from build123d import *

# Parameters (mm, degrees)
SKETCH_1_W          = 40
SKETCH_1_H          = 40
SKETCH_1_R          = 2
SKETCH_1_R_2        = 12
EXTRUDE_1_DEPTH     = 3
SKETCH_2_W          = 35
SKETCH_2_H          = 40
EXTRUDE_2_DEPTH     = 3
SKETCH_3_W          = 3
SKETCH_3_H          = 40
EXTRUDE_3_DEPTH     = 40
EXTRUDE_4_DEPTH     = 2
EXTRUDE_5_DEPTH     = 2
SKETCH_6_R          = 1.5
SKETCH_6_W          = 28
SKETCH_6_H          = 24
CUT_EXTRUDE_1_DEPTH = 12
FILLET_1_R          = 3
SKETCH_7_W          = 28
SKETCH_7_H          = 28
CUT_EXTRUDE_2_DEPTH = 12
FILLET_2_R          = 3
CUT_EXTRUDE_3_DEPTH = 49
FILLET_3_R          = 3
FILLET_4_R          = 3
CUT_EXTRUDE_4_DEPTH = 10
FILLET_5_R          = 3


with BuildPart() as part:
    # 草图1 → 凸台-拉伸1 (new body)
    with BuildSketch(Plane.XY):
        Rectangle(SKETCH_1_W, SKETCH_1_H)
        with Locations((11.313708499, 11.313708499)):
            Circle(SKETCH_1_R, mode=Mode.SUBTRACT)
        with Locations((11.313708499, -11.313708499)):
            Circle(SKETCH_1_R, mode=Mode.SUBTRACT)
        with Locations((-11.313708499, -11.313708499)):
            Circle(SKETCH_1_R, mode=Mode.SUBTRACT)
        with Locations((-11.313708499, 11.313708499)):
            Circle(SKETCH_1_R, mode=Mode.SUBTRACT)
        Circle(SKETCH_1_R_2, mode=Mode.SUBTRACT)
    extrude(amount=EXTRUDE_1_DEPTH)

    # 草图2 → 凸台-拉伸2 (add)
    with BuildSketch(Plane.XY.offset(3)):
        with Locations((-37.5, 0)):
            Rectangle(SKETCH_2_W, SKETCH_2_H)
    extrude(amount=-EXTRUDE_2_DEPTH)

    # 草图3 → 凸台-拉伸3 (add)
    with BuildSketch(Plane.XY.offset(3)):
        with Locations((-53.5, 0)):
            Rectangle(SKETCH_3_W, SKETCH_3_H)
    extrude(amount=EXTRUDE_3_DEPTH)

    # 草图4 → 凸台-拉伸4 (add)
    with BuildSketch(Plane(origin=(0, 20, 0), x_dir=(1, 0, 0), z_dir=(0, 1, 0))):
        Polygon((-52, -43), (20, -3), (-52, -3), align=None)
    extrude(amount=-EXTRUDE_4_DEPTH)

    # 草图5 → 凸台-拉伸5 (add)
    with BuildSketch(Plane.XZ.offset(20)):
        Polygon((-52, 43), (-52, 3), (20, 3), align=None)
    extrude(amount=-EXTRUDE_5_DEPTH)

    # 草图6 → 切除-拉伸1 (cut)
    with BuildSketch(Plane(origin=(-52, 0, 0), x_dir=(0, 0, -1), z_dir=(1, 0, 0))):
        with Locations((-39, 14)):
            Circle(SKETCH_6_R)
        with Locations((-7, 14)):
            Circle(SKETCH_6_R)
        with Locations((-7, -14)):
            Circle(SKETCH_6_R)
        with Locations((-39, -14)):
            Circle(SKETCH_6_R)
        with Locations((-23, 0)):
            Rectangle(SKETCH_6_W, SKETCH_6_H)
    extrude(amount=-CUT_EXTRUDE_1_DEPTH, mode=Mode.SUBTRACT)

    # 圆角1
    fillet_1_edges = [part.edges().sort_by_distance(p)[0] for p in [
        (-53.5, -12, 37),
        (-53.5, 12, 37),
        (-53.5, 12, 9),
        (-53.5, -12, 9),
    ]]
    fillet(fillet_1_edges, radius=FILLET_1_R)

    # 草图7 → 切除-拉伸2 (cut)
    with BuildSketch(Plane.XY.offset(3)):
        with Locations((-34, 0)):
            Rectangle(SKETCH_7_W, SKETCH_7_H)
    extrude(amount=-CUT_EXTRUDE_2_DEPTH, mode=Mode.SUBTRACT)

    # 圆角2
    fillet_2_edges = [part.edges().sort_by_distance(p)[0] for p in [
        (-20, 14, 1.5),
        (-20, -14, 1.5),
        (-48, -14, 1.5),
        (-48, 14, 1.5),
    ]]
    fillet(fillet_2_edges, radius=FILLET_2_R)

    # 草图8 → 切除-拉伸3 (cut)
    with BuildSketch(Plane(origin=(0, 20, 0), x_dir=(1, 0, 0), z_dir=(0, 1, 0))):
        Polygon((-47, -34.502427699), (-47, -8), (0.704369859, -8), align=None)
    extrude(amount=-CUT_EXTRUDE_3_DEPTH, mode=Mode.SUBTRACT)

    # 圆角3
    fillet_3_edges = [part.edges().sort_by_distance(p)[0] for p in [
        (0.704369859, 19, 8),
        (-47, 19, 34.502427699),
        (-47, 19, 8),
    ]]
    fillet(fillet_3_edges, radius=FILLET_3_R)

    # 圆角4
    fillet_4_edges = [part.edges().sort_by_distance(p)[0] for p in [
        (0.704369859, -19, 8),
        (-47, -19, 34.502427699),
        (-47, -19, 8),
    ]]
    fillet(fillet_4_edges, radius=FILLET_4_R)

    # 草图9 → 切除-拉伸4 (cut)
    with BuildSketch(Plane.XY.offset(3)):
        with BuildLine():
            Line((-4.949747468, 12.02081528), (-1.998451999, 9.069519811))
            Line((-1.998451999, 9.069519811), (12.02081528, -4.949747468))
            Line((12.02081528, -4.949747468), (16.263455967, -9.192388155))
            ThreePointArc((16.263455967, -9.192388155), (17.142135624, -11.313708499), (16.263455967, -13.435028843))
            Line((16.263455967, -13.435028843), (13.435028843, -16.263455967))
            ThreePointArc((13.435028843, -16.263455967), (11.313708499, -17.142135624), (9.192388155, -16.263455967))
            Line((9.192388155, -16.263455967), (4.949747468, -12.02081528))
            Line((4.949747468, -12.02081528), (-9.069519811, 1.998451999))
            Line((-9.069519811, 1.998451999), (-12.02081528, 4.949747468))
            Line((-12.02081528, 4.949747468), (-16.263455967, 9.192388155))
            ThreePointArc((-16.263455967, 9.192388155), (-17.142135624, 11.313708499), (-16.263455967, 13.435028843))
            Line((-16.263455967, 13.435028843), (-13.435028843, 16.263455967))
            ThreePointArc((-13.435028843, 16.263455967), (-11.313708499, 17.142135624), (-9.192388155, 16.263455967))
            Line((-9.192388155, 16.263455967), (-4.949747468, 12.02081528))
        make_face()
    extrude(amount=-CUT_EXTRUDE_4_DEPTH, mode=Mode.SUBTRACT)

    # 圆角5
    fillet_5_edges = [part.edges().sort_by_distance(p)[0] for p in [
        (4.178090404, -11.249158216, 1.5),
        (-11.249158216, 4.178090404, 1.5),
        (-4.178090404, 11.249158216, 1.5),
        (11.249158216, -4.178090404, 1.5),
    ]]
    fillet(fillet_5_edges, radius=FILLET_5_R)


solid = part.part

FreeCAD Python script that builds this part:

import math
import FreeCAD as App
import Part
import Sketcher

V = App.Vector
Q = App.Units.Quantity


def edges_at(feature, points):
    """Names of the edges that pass closest to the given points."""
    edges = feature.Shape.Edges
    near = lambda p: min(range(len(edges)), key=lambda i: edges[i].distToShape(Part.Vertex(*p))[0])
    return sorted({f"Edge{near(p) + 1}" for p in points})

doc = App.newDocument("Part")
body = doc.addObject("PartDesign::Body", "Body")

sketch1 = body.newObject("Sketcher::SketchObject", "Sketch")
sketch1.AttachmentSupport = (doc.getObject("XY_Plane"), [""])
sketch1.MapMode = "FlatFace"
sketch1.addGeometry(Part.LineSegment(V(-20, 20, 0), V(-20, -20, 0)), False)
sketch1.addGeometry(Part.LineSegment(V(-20, -20, 0), V(20, -20, 0)), False)
sketch1.addGeometry(Part.LineSegment(V(20, -20, 0), V(20, 20, 0)), False)
sketch1.addGeometry(Part.LineSegment(V(20, 20, 0), V(-20, 20, 0)), False)
sketch1.addGeometry(Part.Circle(V(-11.3, -11.3, 0), V(0, 0, 1), 2), False)
sketch1.addGeometry(Part.Circle(V(11.3, -11.3, 0), V(0, 0, 1), 2), False)
sketch1.addGeometry(Part.Circle(V(-11.3, 11.3, 0), V(0, 0, 1), 2), False)
sketch1.addGeometry(Part.Circle(V(0, 0, 0), V(0, 0, 1), 12), False)
sketch1.addGeometry(Part.Circle(V(11.3, 11.3, 0), V(0, 0, 1), 2), False)
sketch1.addConstraint(Sketcher.Constraint("Coincident", 0, 2, 1, 1))
sketch1.addConstraint(Sketcher.Constraint("Coincident", 1, 2, 2, 1))
sketch1.addConstraint(Sketcher.Constraint("Coincident", 2, 2, 3, 1))
sketch1.addConstraint(Sketcher.Constraint("Coincident", 3, 2, 0, 1))
sketch1.addConstraint(Sketcher.Constraint("Vertical", 0))
sketch1.addConstraint(Sketcher.Constraint("Horizontal", 1))
sketch1.addConstraint(Sketcher.Constraint("Vertical", 2))
sketch1.addConstraint(Sketcher.Constraint("Horizontal", 3))
sketch1.addConstraint(Sketcher.Constraint("Coincident", 7, 3, -1, 1))
sketch1.addConstraint(Sketcher.Constraint("Equal", 4, 5))
sketch1.addConstraint(Sketcher.Constraint("Equal", 5, 6))
sketch1.addConstraint(Sketcher.Constraint("Equal", 6, 8))
sketch1.addConstraint(Sketcher.Constraint("Symmetric", 5, 3, 6, 3, -1, 1))
sketch1.addConstraint(Sketcher.Constraint("Symmetric", 4, 3, 8, 3, -1, 1))
sketch1.addConstraint(Sketcher.Constraint("Symmetric", 0, 2, 2, 2, -1, 1))
sketch1.addConstraint(Sketcher.Constraint("Symmetric", 4, 3, 5, 3, -2))
sketch1.addConstraint(Sketcher.Constraint("Equal", 3, 0))
sketch1.addConstraint(Sketcher.Constraint("Diameter", 4, Q("4 mm")))
sketch1.addConstraint(Sketcher.Constraint("Diameter", 7, Q("24 mm")))
sketch1.addConstraint(Sketcher.Constraint("DistanceX", 1, 1, 1, 2, Q("40 mm")))
sketch1.addConstraint(Sketcher.Constraint("DistanceX", 4, 3, -1, 1, Q("11.313708 mm")))
sketch1.addConstraint(Sketcher.Constraint("DistanceY", 4, 3, -1, 1, Q("11.313708 mm")))
pad1 = body.newObject("PartDesign::Pad", "Pad")
pad1.Profile = sketch1
pad1.Length = 3

sketch2 = body.newObject("Sketcher::SketchObject", "Sketch001")
sketch2.AttachmentSupport = (doc.getObject("XY_Plane"), [""])
sketch2.MapMode = "FlatFace"
sketch2.AttachmentOffset = App.Placement(V(0, 0, 3), App.Rotation())
sketch2.addGeometry(Part.LineSegment(V(-55, 20, 0), V(-55, -20, 0)), False)
sketch2.addGeometry(Part.LineSegment(V(-55, -20, 0), V(-20, -20, 0)), False)
sketch2.addGeometry(Part.LineSegment(V(-20, -20, 0), V(-20, 20, 0)), False)
sketch2.addGeometry(Part.LineSegment(V(-20, 20, 0), V(-55, 20, 0)), False)
sketch2.addConstraint(Sketcher.Constraint("Coincident", 0, 2, 1, 1))
sketch2.addConstraint(Sketcher.Constraint("Coincident", 1, 2, 2, 1))
sketch2.addConstraint(Sketcher.Constraint("Coincident", 2, 2, 3, 1))
sketch2.addConstraint(Sketcher.Constraint("Coincident", 3, 2, 0, 1))
sketch2.addConstraint(Sketcher.Constraint("Vertical", 0))
sketch2.addConstraint(Sketcher.Constraint("Horizontal", 1))
sketch2.addConstraint(Sketcher.Constraint("Vertical", 2))
sketch2.addConstraint(Sketcher.Constraint("Horizontal", 3))
sketch2.addConstraint(Sketcher.Constraint("DistanceX", 1, 1, 1, 2, Q("35 mm")))
sketch2.addConstraint(Sketcher.Constraint("DistanceY", 0, 2, 0, 1, Q("40 mm")))
sketch2.addConstraint(Sketcher.Constraint("DistanceX", 0, 2, -1, 1, Q("55 mm")))
sketch2.addConstraint(Sketcher.Constraint("DistanceY", 0, 2, -1, 1, Q("20 mm")))
pad2 = body.newObject("PartDesign::Pad", "Pad001")
pad2.Profile = sketch2
pad2.Length = 3
pad2.Reversed = True

sketch3 = body.newObject("Sketcher::SketchObject", "Sketch002")
sketch3.AttachmentSupport = (doc.getObject("XY_Plane"), [""])
sketch3.MapMode = "FlatFace"
sketch3.AttachmentOffset = App.Placement(V(0, 0, 3), App.Rotation())
sketch3.addGeometry(Part.LineSegment(V(-55, 20, 0), V(-55, -20, 0)), False)
sketch3.addGeometry(Part.LineSegment(V(-55, -20, 0), V(-52, -20, 0)), False)
sketch3.addGeometry(Part.LineSegment(V(-52, -20, 0), V(-52, 20, 0)), False)
sketch3.addGeometry(Part.LineSegment(V(-52, 20, 0), V(-55, 20, 0)), False)
sketch3.addConstraint(Sketcher.Constraint("Coincident", 0, 2, 1, 1))
sketch3.addConstraint(Sketcher.Constraint("Coincident", 1, 2, 2, 1))
sketch3.addConstraint(Sketcher.Constraint("Coincident", 2, 2, 3, 1))
sketch3.addConstraint(Sketcher.Constraint("Coincident", 3, 2, 0, 1))
sketch3.addConstraint(Sketcher.Constraint("Vertical", 0))
sketch3.addConstraint(Sketcher.Constraint("Horizontal", 1))
sketch3.addConstraint(Sketcher.Constraint("Vertical", 2))
sketch3.addConstraint(Sketcher.Constraint("Horizontal", 3))
sketch3.addConstraint(Sketcher.Constraint("DistanceX", 1, 1, 1, 2, Q("3 mm")))
sketch3.addConstraint(Sketcher.Constraint("DistanceY", 0, 2, 0, 1, Q("40 mm")))
sketch3.addConstraint(Sketcher.Constraint("DistanceX", 0, 2, -1, 1, Q("55 mm")))
sketch3.addConstraint(Sketcher.Constraint("DistanceY", 0, 2, -1, 1, Q("20 mm")))
pad3 = body.newObject("PartDesign::Pad", "Pad002")
pad3.Profile = sketch3
pad3.Length = 40

sketch4 = body.newObject("Sketcher::SketchObject", "Sketch003")
sketch4.AttachmentSupport = (doc.getObject("XZ_Plane"), [""])
sketch4.MapMode = "FlatFace"
sketch4.AttachmentOffset = App.Placement(V(0, 0, -20), App.Rotation())
sketch4.addGeometry(Part.LineSegment(V(-52, 43, 0), V(20, 3, 0)), False)
sketch4.addGeometry(Part.LineSegment(V(20, 3, 0), V(-52, 3, 0)), False)
sketch4.addGeometry(Part.LineSegment(V(-52, 3, 0), V(-52, 43, 0)), False)
sketch4.addConstraint(Sketcher.Constraint("Coincident", 0, 2, 1, 1))
sketch4.addConstraint(Sketcher.Constraint("Coincident", 1, 2, 2, 1))
sketch4.addConstraint(Sketcher.Constraint("Coincident", 2, 2, 0, 1))
sketch4.addConstraint(Sketcher.Constraint("Horizontal", 1))
sketch4.addConstraint(Sketcher.Constraint("Vertical", 2))
sketch4.addConstraint(Sketcher.Constraint("DistanceX", 1, 2, 1, 1, Q("72 mm")))
sketch4.addConstraint(Sketcher.Constraint("DistanceY", 2, 1, 2, 2, Q("40 mm")))
sketch4.addConstraint(Sketcher.Constraint("DistanceX", -1, 1, 0, 2, Q("20 mm")))
sketch4.addConstraint(Sketcher.Constraint("DistanceY", -1, 1, 0, 2, Q("3 mm")))
pad4 = body.newObject("PartDesign::Pad", "Pad003")
pad4.Profile = sketch4
pad4.Length = 2

sketch5 = body.newObject("Sketcher::SketchObject", "Sketch004")
sketch5.AttachmentSupport = (doc.getObject("XZ_Plane"), [""])
sketch5.MapMode = "FlatFace"
sketch5.AttachmentOffset = App.Placement(V(0, 0, 20), App.Rotation())
sketch5.addGeometry(Part.LineSegment(V(-52, 43, 0), V(-52, 3, 0)), False)
sketch5.addGeometry(Part.LineSegment(V(-52, 3, 0), V(20, 3, 0)), False)
sketch5.addGeometry(Part.LineSegment(V(20, 3, 0), V(-52, 43, 0)), False)
sketch5.addConstraint(Sketcher.Constraint("Coincident", 0, 2, 1, 1))
sketch5.addConstraint(Sketcher.Constraint("Coincident", 1, 2, 2, 1))
sketch5.addConstraint(Sketcher.Constraint("Coincident", 2, 2, 0, 1))
sketch5.addConstraint(Sketcher.Constraint("Vertical", 0))
sketch5.addConstraint(Sketcher.Constraint("Horizontal", 1))
sketch5.addConstraint(Sketcher.Constraint("DistanceX", 1, 1, 1, 2, Q("72 mm")))
sketch5.addConstraint(Sketcher.Constraint("DistanceY", 0, 2, 0, 1, Q("40 mm")))
sketch5.addConstraint(Sketcher.Constraint("DistanceX", 0, 2, -1, 1, Q("52 mm")))
sketch5.addConstraint(Sketcher.Constraint("DistanceY", -1, 1, 0, 2, Q("3 mm")))
pad5 = body.newObject("PartDesign::Pad", "Pad004")
pad5.Profile = sketch5
pad5.Length = 2
pad5.Reversed = True

sketch6 = body.newObject("Sketcher::SketchObject", "Sketch005")
sketch6.AttachmentSupport = (doc.getObject("YZ_Plane"), [""])
sketch6.MapMode = "FlatFace"
sketch6.AttachmentOffset = App.Placement(V(0, 0, -52), App.Rotation())
sketch6.addGeometry(Part.Circle(V(14, 39, 0), V(0, 0, 1), 1.5), False)
sketch6.addGeometry(Part.Circle(V(14, 7, 0), V(0, 0, 1), 1.5), False)
sketch6.addGeometry(Part.Circle(V(-14, 7, 0), V(0, 0, 1), 1.5), False)
sketch6.addGeometry(Part.Circle(V(-14, 39, 0), V(0, 0, 1), 1.5), False)
sketch6.addGeometry(Part.LineSegment(V(12, 37, 0), V(-12, 37, 0)), False)
sketch6.addGeometry(Part.LineSegment(V(-12, 37, 0), V(-12, 9, 0)), False)
sketch6.addGeometry(Part.LineSegment(V(-12, 9, 0), V(12, 9, 0)), False)
sketch6.addGeometry(Part.LineSegment(V(12, 9, 0), V(12, 37, 0)), False)
sketch6.addConstraint(Sketcher.Constraint("Coincident", 4, 2, 5, 1))
sketch6.addConstraint(Sketcher.Constraint("Coincident", 5, 2, 6, 1))
sketch6.addConstraint(Sketcher.Constraint("Coincident", 6, 2, 7, 1))
sketch6.addConstraint(Sketcher.Constraint("Coincident", 7, 2, 4, 1))
sketch6.addConstraint(Sketcher.Constraint("Horizontal", 4))
sketch6.addConstraint(Sketcher.Constraint("Vertical", 5))
sketch6.addConstraint(Sketcher.Constraint("Horizontal", 6))
sketch6.addConstraint(Sketcher.Constraint("Vertical", 7))
sketch6.addConstraint(Sketcher.Constraint("Equal", 0, 1))
sketch6.addConstraint(Sketcher.Constraint("Equal", 1, 2))
sketch6.addConstraint(Sketcher.Constraint("Equal", 2, 3))
sketch6.addConstraint(Sketcher.Constraint("Symmetric", 1, 3, 2, 3, -2))
sketch6.addConstraint(Sketcher.Constraint("Symmetric", 0, 3, 3, 3, -2))
sketch6.addConstraint(Sketcher.Constraint("Vertical", 0, 3, 1, 3))
sketch6.addConstraint(Sketcher.Constraint("Diameter", 0, Q("3 mm")))
sketch6.addConstraint(Sketcher.Constraint("DistanceX", 4, 2, 4, 1, Q("24 mm")))
sketch6.addConstraint(Sketcher.Constraint("DistanceY", 5, 2, 5, 1, Q("28 mm")))
sketch6.addConstraint(Sketcher.Constraint("DistanceX", -1, 1, 0, 3, Q("14 mm")))
sketch6.addConstraint(Sketcher.Constraint("DistanceY", -1, 1, 0, 3, Q("39 mm")))
sketch6.addConstraint(Sketcher.Constraint("DistanceY", -1, 1, 1, 3, Q("7 mm")))
sketch6.addConstraint(Sketcher.Constraint("DistanceX", 4, 2, -1, 1, Q("12 mm")))
sketch6.addConstraint(Sketcher.Constraint("DistanceY", -1, 1, 4, 2, Q("37 mm")))
pocket1 = body.newObject("PartDesign::Pocket", "Pocket")
pocket1.Profile = sketch6
pocket1.Length = 12
doc.recompute()

fillet = body.newObject("PartDesign::Fillet", "Fillet")
fillet.Base = (pocket1, edges_at(pocket1, [
    (-53.5, -12, 37),
    (-53.5, 12, 37),
    (-53.5, 12, 9),
    (-53.5, -12, 9),
]))
fillet.Radius = 3

sketch7 = body.newObject("Sketcher::SketchObject", "Sketch006")
sketch7.AttachmentSupport = (doc.getObject("XY_Plane"), [""])
sketch7.MapMode = "FlatFace"
sketch7.AttachmentOffset = App.Placement(V(0, 0, 3), App.Rotation())
sketch7.addGeometry(Part.LineSegment(V(-48, 14, 0), V(-48, -14, 0)), False)
sketch7.addGeometry(Part.LineSegment(V(-48, -14, 0), V(-20, -14, 0)), False)
sketch7.addGeometry(Part.LineSegment(V(-20, -14, 0), V(-20, 14, 0)), False)
sketch7.addGeometry(Part.LineSegment(V(-20, 14, 0), V(-48, 14, 0)), False)
sketch7.addConstraint(Sketcher.Constraint("Coincident", 0, 2, 1, 1))
sketch7.addConstraint(Sketcher.Constraint("Coincident", 1, 2, 2, 1))
sketch7.addConstraint(Sketcher.Constraint("Coincident", 2, 2, 3, 1))
sketch7.addConstraint(Sketcher.Constraint("Coincident", 3, 2, 0, 1))
sketch7.addConstraint(Sketcher.Constraint("Vertical", 0))
sketch7.addConstraint(Sketcher.Constraint("Horizontal", 1))
sketch7.addConstraint(Sketcher.Constraint("Vertical", 2))
sketch7.addConstraint(Sketcher.Constraint("Horizontal", 3))
sketch7.addConstraint(Sketcher.Constraint("Equal", 3, 0))
sketch7.addConstraint(Sketcher.Constraint("DistanceX", 1, 1, 1, 2, Q("28 mm")))
sketch7.addConstraint(Sketcher.Constraint("DistanceX", 0, 2, -1, 1, Q("48 mm")))
sketch7.addConstraint(Sketcher.Constraint("DistanceY", 0, 2, -1, 1, Q("14 mm")))
pocket2 = body.newObject("PartDesign::Pocket", "Pocket001")
pocket2.Profile = sketch7
pocket2.Length = 12
doc.recompute()

fillet2 = body.newObject("PartDesign::Fillet", "Fillet001")
fillet2.Base = (pocket2, edges_at(pocket2, [
    (-20, 14, 1.5),
    (-20, -14, 1.5),
    (-48, -14, 1.5),
    (-48, 14, 1.5),
]))
fillet2.Radius = 3

sketch8 = body.newObject("Sketcher::SketchObject", "Sketch007")
sketch8.AttachmentSupport = (doc.getObject("XZ_Plane"), [""])
sketch8.MapMode = "FlatFace"
sketch8.AttachmentOffset = App.Placement(V(0, 0, -20), App.Rotation())
sketch8.addGeometry(Part.LineSegment(V(-47, 8, 0), V(-47, 35, 0)), False)
sketch8.addGeometry(Part.LineSegment(V(-47, 35, 0), V(1, 8, 0)), False)
sketch8.addGeometry(Part.LineSegment(V(1, 8, 0), V(-47, 8, 0)), False)
sketch8.addConstraint(Sketcher.Constraint("Coincident", 0, 2, 1, 1))
sketch8.addConstraint(Sketcher.Constraint("Coincident", 1, 2, 2, 1))
sketch8.addConstraint(Sketcher.Constraint("Coincident", 2, 2, 0, 1))
sketch8.addConstraint(Sketcher.Constraint("Vertical", 0))
sketch8.addConstraint(Sketcher.Constraint("Horizontal", 2))
sketch8.addConstraint(Sketcher.Constraint("DistanceX", 0, 2, -1, 1, Q("47 mm")))
sketch8.addConstraint(Sketcher.Constraint("DistanceY", -1, 1, 1, 2, Q("8 mm")))
sketch8.addConstraint(Sketcher.Constraint("DistanceX", 2, 2, 2, 1, Q("47.70437 mm")))
sketch8.addConstraint(Sketcher.Constraint("Distance", 1, Q("54.571839 mm")))
pocket3 = body.newObject("PartDesign::Pocket", "Pocket002")
pocket3.Profile = sketch8
pocket3.Length = 49
pocket3.Reversed = True
doc.recompute()

fillet3 = body.newObject("PartDesign::Fillet", "Fillet002")
fillet3.Base = (pocket3, edges_at(pocket3, [(0.704, 19, 8), (-47, 19, 34.502), (-47, 19, 8)]))
fillet3.Radius = 3
doc.recompute()

fillet4 = body.newObject("PartDesign::Fillet", "Fillet003")
fillet4.Base = (fillet3, edges_at(fillet3, [(0.704, -19, 8), (-47, -19, 34.502), (-47, -19, 8)]))
fillet4.Radius = 3

sketch9 = body.newObject("Sketcher::SketchObject", "Sketch008")
sketch9.AttachmentSupport = (doc.getObject("XY_Plane"), [""])
sketch9.MapMode = "FlatFace"
sketch9.AttachmentOffset = App.Placement(V(0, 0, 3), App.Rotation())
sketch9.addGeometry(Part.ArcOfCircle(Part.Circle(V(14.1, -11.3, 0), V(0, 0, 1), 3), math.radians(-45), math.radians(45)), False)
sketch9.addGeometry(Part.LineSegment(V(16.3, -9.2, 0), V(-9.2, 16.3, 0)), False)
sketch9.addGeometry(Part.ArcOfCircle(Part.Circle(V(-11.3, 14.1, 0), V(0, 0, 1), 3), math.radians(45), math.radians(135)), False)
sketch9.addGeometry(Part.LineSegment(V(-13.4, 16.3, 0), V(-16.3, 13.4, 0)), False)
sketch9.addGeometry(Part.ArcOfCircle(Part.Circle(V(-14.1, 11.3, 0), V(0, 0, 1), 3), math.radians(135), math.radians(225)), False)
sketch9.addGeometry(Part.LineSegment(V(-16.3, 9.2, 0), V(9.2, -16.3, 0)), False)
sketch9.addGeometry(Part.ArcOfCircle(Part.Circle(V(11.3, -14.1, 0), V(0, 0, 1), 3), math.radians(-135), math.radians(-45)), False)
sketch9.addGeometry(Part.LineSegment(V(13.4, -16.3, 0), V(16.3, -13.4, 0)), False)
sketch9.addConstraint(Sketcher.Constraint("Tangent", 0, 2, 1, 1))
sketch9.addConstraint(Sketcher.Constraint("Tangent", 1, 2, 2, 1))
sketch9.addConstraint(Sketcher.Constraint("Tangent", 2, 2, 3, 1))
sketch9.addConstraint(Sketcher.Constraint("Tangent", 3, 2, 4, 1))
sketch9.addConstraint(Sketcher.Constraint("Tangent", 4, 2, 5, 1))
sketch9.addConstraint(Sketcher.Constraint("Tangent", 5, 2, 6, 1))
sketch9.addConstraint(Sketcher.Constraint("Tangent", 6, 2, 7, 1))
sketch9.addConstraint(Sketcher.Constraint("Tangent", 7, 2, 0, 1))
sketch9.addConstraint(Sketcher.Constraint("Equal", 0, 2))
sketch9.addConstraint(Sketcher.Constraint("Equal", 2, 4))
sketch9.addConstraint(Sketcher.Constraint("Equal", 4, 6))
sketch9.addConstraint(Sketcher.Constraint("Symmetric", 0, 3, 4, 3, -1, 1))
sketch9.addConstraint(Sketcher.Constraint("Symmetric", 2, 3, 6, 3, -1, 1))
sketch9.addConstraint(Sketcher.Constraint("Perpendicular", 1, 3))
sketch9.addConstraint(Sketcher.Constraint("Horizontal", 1, 2, 2, 2))
sketch9.addConstraint(Sketcher.Constraint("Radius", 0, Q("3 mm")))
sketch9.addConstraint(Sketcher.Constraint("Distance", 1, Q("36 mm")))
sketch9.addConstraint(Sketcher.Constraint("Distance", 3, Q("4 mm")))
pocket4 = body.newObject("PartDesign::Pocket", "Pocket003")
pocket4.Profile = sketch9
pocket4.Length = 10
doc.recompute()

fillet5 = body.newObject("PartDesign::Fillet", "Fillet004")
fillet5.Base = (pocket4, edges_at(pocket4, [
    (4.178, -11.249, 1.5),
    (-11.249, 4.178, 1.5),
    (-4.178, 11.249, 1.5),
    (11.249, -4.178, 1.5),
]))
fillet5.Radius = 3

doc.recompute()
